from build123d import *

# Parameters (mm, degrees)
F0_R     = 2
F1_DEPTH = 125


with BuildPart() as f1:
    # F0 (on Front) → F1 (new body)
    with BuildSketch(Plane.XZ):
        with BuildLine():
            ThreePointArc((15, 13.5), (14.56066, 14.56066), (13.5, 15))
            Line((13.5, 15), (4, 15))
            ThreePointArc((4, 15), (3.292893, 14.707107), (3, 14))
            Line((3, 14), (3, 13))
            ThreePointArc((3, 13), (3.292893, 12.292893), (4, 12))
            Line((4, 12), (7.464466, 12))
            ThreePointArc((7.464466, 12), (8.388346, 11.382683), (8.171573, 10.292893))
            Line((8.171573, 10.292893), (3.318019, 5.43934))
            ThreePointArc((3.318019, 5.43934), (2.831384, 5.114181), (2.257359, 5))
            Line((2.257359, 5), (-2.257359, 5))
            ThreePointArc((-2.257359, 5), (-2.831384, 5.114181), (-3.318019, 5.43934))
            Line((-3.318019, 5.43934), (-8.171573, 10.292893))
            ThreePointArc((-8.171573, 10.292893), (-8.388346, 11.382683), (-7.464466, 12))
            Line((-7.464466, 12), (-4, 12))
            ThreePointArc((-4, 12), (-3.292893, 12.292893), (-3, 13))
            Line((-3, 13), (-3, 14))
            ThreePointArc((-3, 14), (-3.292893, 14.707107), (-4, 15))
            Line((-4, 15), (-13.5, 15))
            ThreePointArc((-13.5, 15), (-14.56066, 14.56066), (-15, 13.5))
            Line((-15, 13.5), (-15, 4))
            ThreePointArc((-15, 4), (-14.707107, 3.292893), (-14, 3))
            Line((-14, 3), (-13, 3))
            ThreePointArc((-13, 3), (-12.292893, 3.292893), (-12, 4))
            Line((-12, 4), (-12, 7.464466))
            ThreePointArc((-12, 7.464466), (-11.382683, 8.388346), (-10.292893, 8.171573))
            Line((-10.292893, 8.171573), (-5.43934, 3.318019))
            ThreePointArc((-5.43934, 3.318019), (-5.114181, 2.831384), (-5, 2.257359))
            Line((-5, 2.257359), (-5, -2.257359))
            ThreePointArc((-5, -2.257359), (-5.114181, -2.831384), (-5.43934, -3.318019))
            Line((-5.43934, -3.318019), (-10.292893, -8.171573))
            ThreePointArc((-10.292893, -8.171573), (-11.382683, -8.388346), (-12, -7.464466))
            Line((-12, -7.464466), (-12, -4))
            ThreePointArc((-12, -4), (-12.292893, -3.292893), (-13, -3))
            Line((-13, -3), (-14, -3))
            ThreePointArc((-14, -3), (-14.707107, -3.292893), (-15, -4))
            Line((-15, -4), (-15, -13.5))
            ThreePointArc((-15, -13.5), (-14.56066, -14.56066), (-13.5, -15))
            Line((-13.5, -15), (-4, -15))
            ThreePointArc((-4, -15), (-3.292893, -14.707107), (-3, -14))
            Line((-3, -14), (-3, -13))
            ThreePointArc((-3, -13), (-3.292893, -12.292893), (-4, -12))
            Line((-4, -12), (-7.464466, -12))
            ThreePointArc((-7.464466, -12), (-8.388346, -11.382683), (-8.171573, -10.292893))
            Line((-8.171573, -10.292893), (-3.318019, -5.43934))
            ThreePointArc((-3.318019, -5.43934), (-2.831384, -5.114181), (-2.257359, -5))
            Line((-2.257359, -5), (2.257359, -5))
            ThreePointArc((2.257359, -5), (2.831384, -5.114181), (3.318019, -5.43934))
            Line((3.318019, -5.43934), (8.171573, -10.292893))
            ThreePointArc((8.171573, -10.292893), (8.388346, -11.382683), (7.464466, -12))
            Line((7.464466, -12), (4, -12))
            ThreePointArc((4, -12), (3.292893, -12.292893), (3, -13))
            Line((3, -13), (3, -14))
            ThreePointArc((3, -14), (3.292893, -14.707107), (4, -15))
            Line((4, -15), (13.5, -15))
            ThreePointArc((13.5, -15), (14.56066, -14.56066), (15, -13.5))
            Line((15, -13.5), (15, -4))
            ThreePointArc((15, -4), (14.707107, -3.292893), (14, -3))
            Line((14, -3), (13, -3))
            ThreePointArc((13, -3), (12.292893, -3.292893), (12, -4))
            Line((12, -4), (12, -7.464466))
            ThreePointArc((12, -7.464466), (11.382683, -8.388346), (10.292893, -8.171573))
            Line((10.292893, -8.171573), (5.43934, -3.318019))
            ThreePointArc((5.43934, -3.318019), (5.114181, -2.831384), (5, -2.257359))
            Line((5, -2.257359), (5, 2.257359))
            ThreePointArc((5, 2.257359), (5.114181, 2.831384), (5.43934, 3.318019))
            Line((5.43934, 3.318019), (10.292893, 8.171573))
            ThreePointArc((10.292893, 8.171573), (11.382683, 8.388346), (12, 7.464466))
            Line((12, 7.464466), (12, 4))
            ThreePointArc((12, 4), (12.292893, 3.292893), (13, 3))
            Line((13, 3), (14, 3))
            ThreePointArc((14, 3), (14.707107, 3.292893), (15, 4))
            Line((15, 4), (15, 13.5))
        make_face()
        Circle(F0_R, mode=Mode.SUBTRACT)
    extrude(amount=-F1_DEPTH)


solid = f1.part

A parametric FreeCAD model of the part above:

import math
import FreeCAD as App
import Part
import Sketcher
from FreeCAD import Vector

doc = App.newDocument("Part")
body = doc.addObject("PartDesign::Body", "Body")

# Sketch on XZ plane
sketch1 = doc.addObject("Sketcher::SketchObject", "Sketch")
body.addObject(sketch1)
sketch1.AttachmentSupport = (doc.XZ_Plane, [""])
sketch1.MapMode = "FlatFace"
sketch1.addGeometry([
    Part.ArcOfCircle(Part.Circle(Vector(13.5, 13.5, 0), Vector(0, 0, 1), 1.5), math.radians(0), math.radians(90)),  # 0
    Part.LineSegment(Vector(13.5, 15, 0), Vector(4, 15, 0)),  # 1
    Part.ArcOfCircle(Part.Circle(Vector(4, 14, 0), Vector(0, 0, 1), 1), math.radians(90), math.radians(180)),  # 2
    Part.LineSegment(Vector(3, 14, 0), Vector(3, 13, 0)),  # 3
    Part.ArcOfCircle(Part.Circle(Vector(4, 13, 0), Vector(0, 0, 1), 1), math.radians(180), math.radians(270)),  # 4
    Part.LineSegment(Vector(4, 12, 0), Vector(7.5, 12, 0)),  # 5
    Part.ArcOfCircle(Part.Circle(Vector(7.5, 11, 0), Vector(0, 0, 1), 1), math.radians(-45), math.radians(90)),  # 6
    Part.LineSegment(Vector(8.2, 10.3, 0), Vector(3.3, 5.4, 0)),  # 7
    Part.ArcOfCircle(Part.Circle(Vector(2.3, 6.5, 0), Vector(0, 0, 1), 1.5), math.radians(-90), math.radians(-45)),  # 8
    Part.LineSegment(Vector(2.3, 5, 0), Vector(-2.3, 5, 0)),  # 9
    Part.ArcOfCircle(Part.Circle(Vector(-2.3, 6.5, 0), Vector(0, 0, 1), 1.5), math.radians(-135), math.radians(-90)),  # 10
    Part.LineSegment(Vector(-3.3, 5.4, 0), Vector(-8.2, 10.3, 0)),  # 11
    Part.ArcOfCircle(Part.Circle(Vector(-7.5, 11, 0), Vector(0, 0, 1), 1), math.radians(90), math.radians(225)),  # 12
    Part.LineSegment(Vector(-7.5, 12, 0), Vector(-4, 12, 0)),  # 13
    Part.ArcOfCircle(Part.Circle(Vector(-4, 13, 0), Vector(0, 0, 1), 1), math.radians(-90), math.radians(0)),  # 14
    Part.LineSegment(Vector(-3, 13, 0), Vector(-3, 14, 0)),  # 15
    Part.ArcOfCircle(Part.Circle(Vector(-4, 14, 0), Vector(0, 0, 1), 1), math.radians(0), math.radians(90)),  # 16
    Part.LineSegment(Vector(-4, 15, 0), Vector(-13.5, 15, 0)),  # 17
    Part.ArcOfCircle(Part.Circle(Vector(-13.5, 13.5, 0), Vector(0, 0, 1), 1.5), math.radians(90), math.radians(180)),  # 18
    Part.LineSegment(Vector(-15, 13.5, 0), Vector(-15, 4, 0)),  # 19
    Part.ArcOfCircle(Part.Circle(Vector(-14, 4, 0), Vector(0, 0, 1), 1), math.radians(180), math.radians(270)),  # 20
    Part.LineSegment(Vector(-14, 3, 0), Vector(-13, 3, 0)),  # 21
    Part.ArcOfCircle(Part.Circle(Vector(-13, 4, 0), Vector(0, 0, 1), 1), math.radians(-90), math.radians(0)),  # 22
    Part.LineSegment(Vector(-12, 4, 0), Vector(-12, 7.5, 0)),  # 23
    Part.ArcOfCircle(Part.Circle(Vector(-11, 7.5, 0), Vector(0, 0, 1), 1), math.radians(45), math.radians(180)),  # 24
    Part.LineSegment(Vector(-10.3, 8.2, 0), Vector(-5.4, 3.3, 0)),  # 25
    Part.ArcOfCircle(Part.Circle(Vector(-6.5, 2.3, 0), Vector(0, 0, 1), 1.5), math.radians(0), math.radians(45)),  # 26
    Part.LineSegment(Vector(-5, 2.3, 0), Vector(-5, -2.3, 0)),  # 27
    Part.ArcOfCircle(Part.Circle(Vector(-6.5, -2.3, 0), Vector(0, 0, 1), 1.5), math.radians(-45), math.radians(0)),  # 28
    Part.LineSegment(Vector(-5.4, -3.3, 0), Vector(-10.3, -8.2, 0)),  # 29
    Part.ArcOfCircle(Part.Circle(Vector(-11, -7.5, 0), Vector(0, 0, 1), 1), math.radians(180), math.radians(315)),  # 30
    Part.LineSegment(Vector(-12, -7.5, 0), Vector(-12, -4, 0)),  # 31
    Part.ArcOfCircle(Part.Circle(Vector(-13, -4, 0), Vector(0, 0, 1), 1), math.radians(0), math.radians(90)),  # 32
    Part.LineSegment(Vector(-13, -3, 0), Vector(-14, -3, 0)),  # 33
    Part.ArcOfCircle(Part.Circle(Vector(-14, -4, 0), Vector(0, 0, 1), 1), math.radians(90), math.radians(180)),  # 34
    Part.LineSegment(Vector(-15, -4, 0), Vector(-15, -13.5, 0)),  # 35
    Part.ArcOfCircle(Part.Circle(Vector(-13.5, -13.5, 0), Vector(0, 0, 1), 1.5), math.radians(-180), math.radians(-90)),  # 36
    Part.LineSegment(Vector(-13.5, -15, 0), Vector(-4, -15, 0)),  # 37
    Part.ArcOfCircle(Part.Circle(Vector(-4, -14, 0), Vector(0, 0, 1), 1), math.radians(-90), math.radians(0)),  # 38
    Part.LineSegment(Vector(-3, -14, 0), Vector(-3, -13, 0)),  # 39
    Part.ArcOfCircle(Part.Circle(Vector(-4, -13, 0), Vector(0, 0, 1), 1), math.radians(0), math.radians(90)),  # 40
    Part.LineSegment(Vector(-4, -12, 0), Vector(-7.5, -12, 0)),  # 41
    Part.ArcOfCircle(Part.Circle(Vector(-7.5, -11, 0), Vector(0, 0, 1), 1), math.radians(135), math.radians(270)),  # 42
    Part.LineSegment(Vector(-8.2, -10.3, 0), Vector(-3.3, -5.4, 0)),  # 43
    Part.ArcOfCircle(Part.Circle(Vector(-2.3, -6.5, 0), Vector(0, 0, 1), 1.5), math.radians(90), math.radians(135)),  # 44
    Part.LineSegment(Vector(-2.3, -5, 0), Vector(2.3, -5, 0)),  # 45
    Part.ArcOfCircle(Part.Circle(Vector(2.3, -6.5, 0), Vector(0, 0, 1), 1.5), math.radians(45), math.radians(90)),  # 46
    Part.LineSegment(Vector(3.3, -5.4, 0), Vector(8.2, -10.3, 0)),  # 47
    Part.ArcOfCircle(Part.Circle(Vector(7.5, -11, 0), Vector(0, 0, 1), 1), math.radians(-90), math.radians(45)),  # 48
    Part.LineSegment(Vector(7.5, -12, 0), Vector(4, -12, 0)),  # 49
    Part.ArcOfCircle(Part.Circle(Vector(4, -13, 0), Vector(0, 0, 1), 1), math.radians(90), math.radians(180)),  # 50
    Part.LineSegment(Vector(3, -13, 0), Vector(3, -14, 0)),  # 51
    Part.ArcOfCircle(Part.Circle(Vector(4, -14, 0), Vector(0, 0, 1), 1), math.radians(180), math.radians(270)),  # 52
    Part.LineSegment(Vector(4, -15, 0), Vector(13.5, -15, 0)),  # 53
    Part.ArcOfCircle(Part.Circle(Vector(13.5, -13.5, 0), Vector(0, 0, 1), 1.5), math.radians(-90), math.radians(0)),  # 54
    Part.LineSegment(Vector(15, -13.5, 0), Vector(15, -4, 0)),  # 55
    Part.ArcOfCircle(Part.Circle(Vector(14, -4, 0), Vector(0, 0, 1), 1), math.radians(0), math.radians(90)),  # 56
    Part.LineSegment(Vector(14, -3, 0), Vector(13, -3, 0)),  # 57
    Part.ArcOfCircle(Part.Circle(Vector(13, -4, 0), Vector(0, 0, 1), 1), math.radians(90), math.radians(180)),  # 58
    Part.LineSegment(Vector(12, -4, 0), Vector(12, -7.5, 0)),  # 59
    Part.ArcOfCircle(Part.Circle(Vector(11, -7.5, 0), Vector(0, 0, 1), 1), math.radians(-135), math.radians(0)),  # 60
    Part.LineSegment(Vector(10.3, -8.2, 0), Vector(5.4, -3.3, 0)),  # 61
    Part.ArcOfCircle(Part.Circle(Vector(6.5, -2.3, 0), Vector(0, 0, 1), 1.5), math.radians(-180), math.radians(-135)),  # 62
    Part.LineSegment(Vector(5, -2.3, 0), Vector(5, 2.3, 0)),  # 63
    Part.ArcOfCircle(Part.Circle(Vector(6.5, 2.3, 0), Vector(0, 0, 1), 1.5), math.radians(135), math.radians(180)),  # 64
    Part.LineSegment(Vector(5.4, 3.3, 0), Vector(10.3, 8.2, 0)),  # 65
    Part.ArcOfCircle(Part.Circle(Vector(11, 7.5, 0), Vector(0, 0, 1), 1), math.radians(0), math.radians(135)),  # 66
    Part.LineSegment(Vector(12, 7.5, 0), Vector(12, 4, 0)),  # 67
    Part.ArcOfCircle(Part.Circle(Vector(13, 4, 0), Vector(0, 0, 1), 1), math.radians(180), math.radians(270)),  # 68
    Part.LineSegment(Vector(13, 3, 0), Vector(14, 3, 0)),  # 69
    Part.ArcOfCircle(Part.Circle(Vector(14, 4, 0), Vector(0, 0, 1), 1), math.radians(-90), math.radians(0)),  # 70
    Part.LineSegment(Vector(15, 4, 0), Vector(15, 13.5, 0)),  # 71
    Part.Circle(Vector(0, 0, 0), Vector(0, 0, 1), 2),  # 72
], False)
sketch1.addConstraint([
    Sketcher.Constraint("Tangent", 0, 2, 1, 1),
    Sketcher.Constraint("Tangent", 1, 2, 2, 1),
    Sketcher.Constraint("Tangent", 2, 2, 3, 1),
    Sketcher.Constraint("Tangent", 3, 2, 4, 1),
    Sketcher.Constraint("Tangent", 4, 2, 5, 1),
    Sketcher.Constraint("Tangent", 5, 2, 6, 2),
    Sketcher.Constraint("Tangent", 6, 1, 7, 1),
    Sketcher.Constraint("Tangent", 7, 2, 8, 2),
    Sketcher.Constraint("Tangent", 8, 1, 9, 1),
    Sketcher.Constraint("Tangent", 9, 2, 10, 2),
    Sketcher.Constraint("Tangent", 10, 1, 11, 1),
    Sketcher.Constraint("Tangent", 11, 2, 12, 2),
    Sketcher.Constraint("Tangent", 12, 1, 13, 1),
    Sketcher.Constraint("Tangent", 13, 2, 14, 1),
    Sketcher.Constraint("Tangent", 14, 2, 15, 1),
    Sketcher.Constraint("Tangent", 15, 2, 16, 1),
    Sketcher.Constraint("Tangent", 16, 2, 17, 1),
    Sketcher.Constraint("Tangent", 17, 2, 18, 1),
    Sketcher.Constraint("Tangent", 18, 2, 19, 1),
    Sketcher.Constraint("Tangent", 19, 2, 20, 1),
    Sketcher.Constraint("Tangent", 20, 2, 21, 1),
    Sketcher.Constraint("Tangent", 21, 2, 22, 1),
    Sketcher.Constraint("Tangent", 22, 2, 23, 1),
    Sketcher.Constraint("Tangent", 23, 2, 24, 2),
    Sketcher.Constraint("Tangent", 24, 1, 25, 1),
    Sketcher.Constraint("Tangent", 25, 2, 26, 2),
    Sketcher.Constraint("Tangent", 26, 1, 27, 1),
    Sketcher.Constraint("Tangent", 27, 2, 28, 2),
    Sketcher.Constraint("Tangent", 28, 1, 29, 1),
    Sketcher.Constraint("Tangent", 29, 2, 30, 2),
    Sketcher.Constraint("Tangent", 30, 1, 31, 1),
    Sketcher.Constraint("Tangent", 31, 2, 32, 1),
    Sketcher.Constraint("Tangent", 32, 2, 33, 1),
    Sketcher.Constraint("Tangent", 33, 2, 34, 1),
    Sketcher.Constraint("Tangent", 34, 2, 35, 1),
    Sketcher.Constraint("Tangent", 35, 2, 36, 1),
    Sketcher.Constraint("Tangent", 36, 2, 37, 1),
    Sketcher.Constraint("Tangent", 37, 2, 38, 1),
    Sketcher.Constraint("Tangent", 38, 2, 39, 1),
    Sketcher.Constraint("Tangent", 39, 2, 40, 1),
    Sketcher.Constraint("Tangent", 40, 2, 41, 1),
    Sketcher.Constraint("Tangent", 41, 2, 42, 2),
    Sketcher.Constraint("Tangent", 42, 1, 43, 1),
    Sketcher.Constraint("Tangent", 43, 2, 44, 2),
    Sketcher.Constraint("Tangent", 44, 1, 45, 1),
    Sketcher.Constraint("Tangent", 45, 2, 46, 2),
    Sketcher.Constraint("Tangent", 46, 1, 47, 1),
    Sketcher.Constraint("Tangent", 47, 2, 48, 2),
    Sketcher.Constraint("Tangent", 48, 1, 49, 1),
    Sketcher.Constraint("Tangent", 49, 2, 50, 1),
    Sketcher.Constraint("Tangent", 50, 2, 51, 1),
    Sketcher.Constraint("Tangent", 51, 2, 52, 1),
    Sketcher.Constraint("Tangent", 52, 2, 53, 1),
    Sketcher.Constraint("Tangent", 53, 2, 54, 1),
    Sketcher.Constraint("Tangent", 54, 2, 55, 1),
    Sketcher.Constraint("Tangent", 55, 2, 56, 1),
    Sketcher.Constraint("Tangent", 56, 2, 57, 1),
    Sketcher.Constraint("Tangent", 57, 2, 58, 1),
    Sketcher.Constraint("Tangent", 58, 2, 59, 1),
    Sketcher.Constraint("Tangent", 59, 2, 60, 2),
    Sketcher.Constraint("Tangent", 60, 1, 61, 1),
    Sketcher.Constraint("Tangent", 61, 2, 62, 2),
    Sketcher.Constraint("Tangent", 62, 1, 63, 1),
    Sketcher.Constraint("Tangent", 63, 2, 64, 2),
    Sketcher.Constraint("Tangent", 64, 1, 65, 1),
    Sketcher.Constraint("Tangent", 65, 2, 66, 2),
    Sketcher.Constraint("Tangent", 66, 1, 67, 1),
    Sketcher.Constraint("Tangent", 67, 2, 68, 1),
    Sketcher.Constraint("Tangent", 68, 2, 69, 1),
    Sketcher.Constraint("Tangent", 69, 2, 70, 1),
    Sketcher.Constraint("Tangent", 70, 2, 71, 1),
    Sketcher.Constraint("Tangent", 71, 2, 0, 1),
    Sketcher.Constraint("Horizontal", 1),
    Sketcher.Constraint("Vertical", 3),
    Sketcher.Constraint("Horizontal", 5),
    Sketcher.Constraint("Horizontal", 9),
    Sketcher.Constraint("Horizontal", 13),
    Sketcher.Constraint("Vertical", 15),
    Sketcher.Constraint("Horizontal", 17),
    Sketcher.Constraint("Vertical", 19),
    Sketcher.Constraint("Horizontal", 21),
    Sketcher.Constraint("Vertical", 23),
    Sketcher.Constraint("Vertical", 27),
    Sketcher.Constraint("Vertical", 31),
    Sketcher.Constraint("Horizontal", 33),
    Sketcher.Constraint("Vertical", 35),
    Sketcher.Constraint("Horizontal", 37),
    Sketcher.Constraint("Vertical", 39),
    Sketcher.Constraint("Horizontal", 41),
    Sketcher.Constraint("Horizontal", 45),
    Sketcher.Constraint("Horizontal", 49),
    Sketcher.Constraint("Vertical", 51),
    Sketcher.Constraint("Horizontal", 53),
    Sketcher.Constraint("Vertical", 55),
    Sketcher.Constraint("Horizontal", 57),
    Sketcher.Constraint("Vertical", 59),
    Sketcher.Constraint("Vertical", 63),
    Sketcher.Constraint("Vertical", 67),
    Sketcher.Constraint("Horizontal", 69),
    Sketcher.Constraint("Vertical", 71),
    Sketcher.Constraint("Coincident", 72, 3, -1, 1),
    Sketcher.Constraint("Equal", 2, 4),
    Sketcher.Constraint("Equal", 4, 6),
    Sketcher.Constraint("Equal", 0, 8),
    Sketcher.Constraint("Equal", 8, 10),
    Sketcher.Constraint("Equal", 6, 12),
    Sketcher.Constraint("Equal", 12, 14),
    Sketcher.Constraint("Equal", 14, 16),
    Sketcher.Constraint("Equal", 10, 18),
    Sketcher.Constraint("Equal", 16, 20),
    Sketcher.Constraint("Equal", 20, 22),
    Sketcher.Constraint("Equal", 22, 24),
    Sketcher.Constraint("Equal", 18, 26),
    Sketcher.Constraint("Equal", 26, 28),
    Sketcher.Constraint("Equal", 24, 30),
    Sketcher.Constraint("Equal", 30, 32),
    Sketcher.Constraint("Equal", 32, 34),
    Sketcher.Constraint("Equal", 28, 36),
    Sketcher.Constraint("Equal", 34, 38),
    Sketcher.Constraint("Equal", 38, 40),
    Sketcher.Constraint("Equal", 40, 42),
    Sketcher.Constraint("Equal", 36, 44),
    Sketcher.Constraint("Equal", 44, 46),
    Sketcher.Constraint("Equal", 42, 48),
    Sketcher.Constraint("Equal", 48, 50),
    Sketcher.Constraint("Equal", 50, 52),
    Sketcher.Constraint("Equal", 46, 54),
    Sketcher.Constraint("Equal", 52, 56),
    Sketcher.Constraint("Equal", 56, 58),
    Sketcher.Constraint("Equal", 58, 60),
    Sketcher.Constraint("Equal", 54, 62),
    Sketcher.Constraint("Equal", 62, 64),
    Sketcher.Constraint("Equal", 60, 66),
    Sketcher.Constraint("Equal", 66, 68),
    Sketcher.Constraint("Equal", 68, 70),
    Sketcher.Constraint("Symmetric", 0, 3, 36, 3, -1, 1),
    Sketcher.Constraint("Symmetric", 4, 3, 40, 3, -1, 1),
    Sketcher.Constraint("Symmetric", 8, 3, 44, 3, -1, 1),
    Sketcher.Constraint("Symmetric", 12, 3, 48, 3, -1, 1),
    Sketcher.Constraint("Symmetric", 16, 3, 52, 3, -1, 1),
    Sketcher.Constraint("Symmetric", 20, 3, 56, 3, -1, 1),
    Sketcher.Constraint("Symmetric", 24, 3, 60, 3, -1, 1),
    Sketcher.Constraint("Symmetric", 26, 3, 62, 3, -1, 1),
    Sketcher.Constraint("Symmetric", 30, 3, 66, 3, -1, 1),
    Sketcher.Constraint("Symmetric", 6, 3, 12, 3, -2),
    Sketcher.Constraint("Symmetric", 2, 3, 16, 3, -2),
    Sketcher.Constraint("Symmetric", 34, 3, 56, 3, -2),
    Sketcher.Constraint("Symmetric", 30, 3, 60, 3, -2),
    Sketcher.Constraint("Symmetric", 43, 2, 46, 1, -2),
    Sketcher.Constraint("Perpendicular", 7, 11),
    Sketcher.Constraint("Parallel", 11, 25),
    Sketcher.Constraint("Perpendicular", 25, 29),
    Sketcher.Constraint("Perpendicular", 43, 47),
    Sketcher.Constraint("Perpendicular", 61, 65),
    Sketcher.Constraint("Horizontal", 22, 3, 68, 3),
    Sketcher.Constraint("Equal", 69, 3),
    Sketcher.Constraint("Equal", 53, 19),
    Sketcher.Constraint("Equal", 49, 23),
    Sketcher.Constraint("Equal", 45, 27),
    Sketcher.Constraint("Equal", 11, 25),
    Sketcher.Constraint("Diameter", 72, 4.0),
    Sketcher.Constraint("Radius", 2, 0.999999),
    Sketcher.Constraint("Radius", 0, 1.500001),
    Sketcher.Constraint("DistanceX", 21, 1, 21, 2, 1.0),
    Sketcher.Constraint("DistanceX", 1, 2, 1, 1, 9.5),
    Sketcher.Constraint("DistanceX", -1, 1, 2, 3, 3.999999),
    Sketcher.Constraint("DistanceY", -1, 1, 8, 1, 5.0),
    Sketcher.Constraint("DistanceX", 9, 2, 9, 1, 4.514718),
])
pad1 = doc.addObject("PartDesign::Pad", "Pad")
body.addObject(pad1)
pad1.Profile = sketch1
pad1.Length = 125
pad1.Reversed = True

doc.recompute()
